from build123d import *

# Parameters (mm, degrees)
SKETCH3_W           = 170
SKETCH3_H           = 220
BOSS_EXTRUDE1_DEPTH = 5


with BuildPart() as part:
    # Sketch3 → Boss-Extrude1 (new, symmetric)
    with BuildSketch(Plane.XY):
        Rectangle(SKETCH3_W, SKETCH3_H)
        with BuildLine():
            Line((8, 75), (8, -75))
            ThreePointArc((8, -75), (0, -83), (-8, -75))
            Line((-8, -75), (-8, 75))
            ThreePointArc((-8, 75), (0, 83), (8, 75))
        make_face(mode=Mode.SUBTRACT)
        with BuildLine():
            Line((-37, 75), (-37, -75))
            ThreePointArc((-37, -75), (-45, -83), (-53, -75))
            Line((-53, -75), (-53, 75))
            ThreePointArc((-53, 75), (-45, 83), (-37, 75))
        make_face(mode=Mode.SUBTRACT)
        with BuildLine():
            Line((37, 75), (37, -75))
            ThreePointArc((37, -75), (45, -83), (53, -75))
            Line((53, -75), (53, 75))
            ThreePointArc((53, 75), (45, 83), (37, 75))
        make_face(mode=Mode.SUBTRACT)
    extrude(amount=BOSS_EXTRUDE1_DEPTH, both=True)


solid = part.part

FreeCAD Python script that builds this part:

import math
import FreeCAD as App
import Part
import Sketcher
from FreeCAD import Vector
Q = App.Units.Quantity

doc = App.newDocument("Part")
params = doc.addObject("Spreadsheet::Sheet", "Params")
for row, (alias, value) in enumerate([
    ("sketch1_radius", "8 mm"),
    ("sketch1_width", "170 mm"),
    ("sketch1_height", "220 mm"),
    ("sketch1_height2", "150 mm"),
    ("pad1_length", "10 mm"),
], start=1):
    params.set(f"A{row}", alias)
    params.set(f"B{row}", "=" + value)
    params.setAlias(f"B{row}", alias)

body = doc.addObject("PartDesign::Body", "Body")

# Sketch on XY plane
sketch1 = doc.addObject("Sketcher::SketchObject", "Sketch")
body.addObject(sketch1)
sketch1.AttachmentSupport = (doc.XY_Plane, [""])
sketch1.MapMode = "FlatFace"
sketch1.addGeometry(Part.LineSegment(Vector(-85, 110, 0), Vector(-85, -110, 0)), False)
sketch1.addGeometry(Part.LineSegment(Vector(-85, -110, 0), Vector(85, -110, 0)), False)
sketch1.addGeometry(Part.LineSegment(Vector(85, -110, 0), Vector(85, 110, 0)), False)
sketch1.addGeometry(Part.LineSegment(Vector(85, 110, 0), Vector(-85, 110, 0)), False)
sketch1.addGeometry(Part.ArcOfCircle(Part.Circle(Vector(-45, 75, 0), Vector(0, 0, 1), 8), math.radians(0), math.radians(180)), False)
sketch1.addGeometry(Part.LineSegment(Vector(-37, 75, 0), Vector(-37, -75, 0)), False)
sketch1.addGeometry(Part.ArcOfCircle(Part.Circle(Vector(-45, -75, 0), Vector(0, 0, 1), 8), math.radians(180), math.radians(360)), False)
sketch1.addGeometry(Part.LineSegment(Vector(-53, -75, 0), Vector(-53, 75, 0)), False)
sketch1.addGeometry(Part.ArcOfCircle(Part.Circle(Vector(0, 75, 0), Vector(0, 0, 1), 8), math.radians(0), math.radians(180)), False)
sketch1.addGeometry(Part.LineSegment(Vector(8, 75, 0), Vector(8, -75, 0)), False)
sketch1.addGeometry(Part.ArcOfCircle(Part.Circle(Vector(0, -75, 0), Vector(0, 0, 1), 8), math.radians(180), math.radians(360)), False)
sketch1.addGeometry(Part.LineSegment(Vector(-8, -75, 0), Vector(-8, 75, 0)), False)
sketch1.addGeometry(Part.LineSegment(Vector(37, -75, 0), Vector(37, 75, 0)), False)
sketch1.addGeometry(Part.ArcOfCircle(Part.Circle(Vector(45, 75, 0), Vector(0, 0, 1), 8), math.radians(0), math.radians(180)), False)
sketch1.addGeometry(Part.LineSegment(Vector(53, 75, 0), Vector(53, -75, 0)), False)
sketch1.addGeometry(Part.ArcOfCircle(Part.Circle(Vector(45, -75, 0), Vector(0, 0, 1), 8), math.radians(180), math.radians(360)), False)
sketch1.addConstraint(Sketcher.Constraint("Coincident", 0, 2, 1, 1))
sketch1.addConstraint(Sketcher.Constraint("Coincident", 1, 2, 2, 1))
sketch1.addConstraint(Sketcher.Constraint("Coincident", 2, 2, 3, 1))
sketch1.addConstraint(Sketcher.Constraint("Coincident", 3, 2, 0, 1))
sketch1.addConstraint(Sketcher.Constraint("Tangent", 4, 1, 5, 1))
sketch1.addConstraint(Sketcher.Constraint("Tangent", 5, 2, 6, 2))
sketch1.addConstraint(Sketcher.Constraint("Tangent", 6, 1, 7, 1))
sketch1.addConstraint(Sketcher.Constraint("Tangent", 7, 2, 4, 2))
sketch1.addConstraint(Sketcher.Constraint("Tangent", 8, 1, 9, 1))
sketch1.addConstraint(Sketcher.Constraint("Tangent", 9, 2, 10, 2))
sketch1.addConstraint(Sketcher.Constraint("Tangent", 10, 1, 11, 1))
sketch1.addConstraint(Sketcher.Constraint("Tangent", 11, 2, 8, 2))
sketch1.addConstraint(Sketcher.Constraint("Tangent", 12, 2, 13, 2))
sketch1.addConstraint(Sketcher.Constraint("Tangent", 13, 1, 14, 1))
sketch1.addConstraint(Sketcher.Constraint("Tangent", 14, 2, 15, 2))
sketch1.addConstraint(Sketcher.Constraint("Tangent", 15, 1, 12, 1))
sketch1.addConstraint(Sketcher.Constraint("Vertical", 0))
sketch1.addConstraint(Sketcher.Constraint("Horizontal", 1))
sketch1.addConstraint(Sketcher.Constraint("Vertical", 2))
sketch1.addConstraint(Sketcher.Constraint("Horizontal", 3))
sketch1.addConstraint(Sketcher.Constraint("Vertical", 5))
sketch1.addConstraint(Sketcher.Constraint("Vertical", 7))
sketch1.addConstraint(Sketcher.Constraint("Vertical", 9))
sketch1.addConstraint(Sketcher.Constraint("Vertical", 11))
sketch1.addConstraint(Sketcher.Constraint("Vertical", 12))
sketch1.addConstraint(Sketcher.Constraint("Vertical", 14))
sketch1.addConstraint(Sketcher.Constraint("Equal", 6, 8))
sketch1.addConstraint(Sketcher.Constraint("Equal", 10, 13))
sketch1.addConstraint(Sketcher.Constraint("Symmetric", 8, 3, 10, 3, -1, 1))
sketch1.addConstraint(Sketcher.Constraint("Symmetric", 6, 3, 13, 3, -1, 1))
sketch1.addConstraint(Sketcher.Constraint("Symmetric", 0, 2, 2, 2, -1, 1))
sketch1.addConstraint(Sketcher.Constraint("Horizontal", 4, 3, 8, 3))
sketch1.addConstraint(Sketcher.Constraint("Horizontal", 6, 3, 10, 3))
sketch1.addConstraint(Sketcher.Constraint("Horizontal", 10, 3, 15, 3))
sketch1.addConstraint(Sketcher.Constraint("Radius", 4, Q("8 mm")))
sketch1.addConstraint(Sketcher.Constraint("DistanceX", 1, 1, 1, 2, Q("170 mm")))
sketch1.addConstraint(Sketcher.Constraint("DistanceY", 0, 2, 0, 1, Q("220 mm")))
sketch1.addConstraint(Sketcher.Constraint("DistanceY", 5, 2, 5, 1, Q("150 mm")))
sketch1.addConstraint(Sketcher.Constraint("DistanceX", 4, 3, -1, 1, Q("45 mm")))
sketch1.setExpression("Constraints[34]", "Params.sketch1_radius")
sketch1.setExpression("Constraints[35]", "Params.sketch1_width")
sketch1.setExpression("Constraints[36]", "Params.sketch1_height")
sketch1.setExpression("Constraints[37]", "Params.sketch1_height2")
pad1 = doc.addObject("PartDesign::Pad", "Pad")
body.addObject(pad1)
pad1.Profile = sketch1
pad1.setExpression("Length", "Params.pad1_length")
pad1.Midplane = True

doc.recompute()
